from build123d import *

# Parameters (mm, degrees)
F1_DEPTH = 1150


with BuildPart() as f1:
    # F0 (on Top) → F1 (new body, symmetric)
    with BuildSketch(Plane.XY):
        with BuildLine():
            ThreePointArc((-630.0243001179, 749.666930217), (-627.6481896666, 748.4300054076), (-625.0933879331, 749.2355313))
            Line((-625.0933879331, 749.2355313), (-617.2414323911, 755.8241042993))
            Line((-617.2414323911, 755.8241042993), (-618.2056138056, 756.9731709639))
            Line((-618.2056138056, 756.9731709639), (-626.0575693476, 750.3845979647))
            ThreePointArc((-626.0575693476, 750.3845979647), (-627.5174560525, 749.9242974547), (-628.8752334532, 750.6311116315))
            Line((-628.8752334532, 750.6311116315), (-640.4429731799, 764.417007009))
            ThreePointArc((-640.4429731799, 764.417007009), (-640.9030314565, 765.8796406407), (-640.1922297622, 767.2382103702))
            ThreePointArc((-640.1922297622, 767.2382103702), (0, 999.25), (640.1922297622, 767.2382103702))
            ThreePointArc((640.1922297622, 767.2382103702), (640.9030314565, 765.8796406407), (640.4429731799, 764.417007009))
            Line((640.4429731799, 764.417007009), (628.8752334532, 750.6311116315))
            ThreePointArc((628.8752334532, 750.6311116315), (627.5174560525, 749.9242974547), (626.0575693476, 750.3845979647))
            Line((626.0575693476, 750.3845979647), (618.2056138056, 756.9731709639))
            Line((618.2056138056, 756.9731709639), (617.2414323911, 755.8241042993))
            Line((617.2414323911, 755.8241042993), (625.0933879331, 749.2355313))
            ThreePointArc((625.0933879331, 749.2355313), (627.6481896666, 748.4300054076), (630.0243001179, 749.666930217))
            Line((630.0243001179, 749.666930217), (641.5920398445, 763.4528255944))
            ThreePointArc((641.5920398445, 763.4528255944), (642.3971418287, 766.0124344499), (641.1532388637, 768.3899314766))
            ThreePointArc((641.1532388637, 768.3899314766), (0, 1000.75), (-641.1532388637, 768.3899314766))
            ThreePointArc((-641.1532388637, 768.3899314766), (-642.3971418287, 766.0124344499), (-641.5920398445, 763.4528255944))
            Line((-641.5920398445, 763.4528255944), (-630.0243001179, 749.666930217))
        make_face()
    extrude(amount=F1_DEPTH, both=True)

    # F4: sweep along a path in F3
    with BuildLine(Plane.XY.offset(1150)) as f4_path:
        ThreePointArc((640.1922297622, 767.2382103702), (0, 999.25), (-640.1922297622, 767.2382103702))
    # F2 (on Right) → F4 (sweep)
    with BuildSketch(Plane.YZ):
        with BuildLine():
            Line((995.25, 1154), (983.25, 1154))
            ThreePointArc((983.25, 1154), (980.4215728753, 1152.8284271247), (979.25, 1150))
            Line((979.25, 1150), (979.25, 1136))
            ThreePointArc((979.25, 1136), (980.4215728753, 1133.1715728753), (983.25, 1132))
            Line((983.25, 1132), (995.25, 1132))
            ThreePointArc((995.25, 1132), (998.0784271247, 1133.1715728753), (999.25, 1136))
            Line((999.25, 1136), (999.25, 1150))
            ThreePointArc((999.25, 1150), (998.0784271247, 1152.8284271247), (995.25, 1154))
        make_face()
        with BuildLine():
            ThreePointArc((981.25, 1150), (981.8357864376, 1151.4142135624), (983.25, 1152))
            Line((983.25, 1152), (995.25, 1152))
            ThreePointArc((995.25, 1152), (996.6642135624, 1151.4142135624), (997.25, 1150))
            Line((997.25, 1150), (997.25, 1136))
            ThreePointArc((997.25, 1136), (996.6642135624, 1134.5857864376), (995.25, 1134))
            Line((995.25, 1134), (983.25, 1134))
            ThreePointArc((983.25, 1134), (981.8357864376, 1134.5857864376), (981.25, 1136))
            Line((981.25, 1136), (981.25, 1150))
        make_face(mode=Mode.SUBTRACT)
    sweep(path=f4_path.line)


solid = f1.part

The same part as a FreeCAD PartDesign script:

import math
import FreeCAD as App
import Part
import Sketcher

V = App.Vector
Q = App.Units.Quantity

doc = App.newDocument("Part")
body = doc.addObject("PartDesign::Body", "Body")

sketch1 = body.newObject("Sketcher::SketchObject", "Sketch")
sketch1.AttachmentSupport = (doc.getObject("XY_Plane"), [""])
sketch1.MapMode = "FlatFace"
sketch1.addGeometry([
    Part.ArcOfCircle(Part.Circle(V(-627.3, 751.9, 0), V(0, 0, 1), 3.5), math.radians(-140), math.radians(-50)),
    Part.LineSegment(V(-625.1, 749.2, 0), V(-617.2, 755.8, 0)),
    Part.LineSegment(V(-617.2, 755.8, 0), V(-618.2, 757, 0)),
    Part.LineSegment(V(-618.2, 757, 0), V(-626.1, 750.4, 0)),
    Part.ArcOfCircle(Part.Circle(V(-627.3, 751.9, 0), V(0, 0, 1), 2), math.radians(-140), math.radians(-50)),
    Part.LineSegment(V(-628.9, 750.6, 0), V(-640.4, 764.4, 0)),
    Part.ArcOfCircle(Part.Circle(V(-638.9, 765.7, 0), V(0, 0, 1), 2), math.radians(130), math.radians(220)),
    Part.ArcOfCircle(Part.Circle(V(0, 0, 0), V(0, 0, 1), 999.2), math.radians(50), math.radians(130)),
    Part.ArcOfCircle(Part.Circle(V(638.9, 765.7, 0), V(0, 0, 1), 2), math.radians(-40), math.radians(50)),
    Part.LineSegment(V(640.4, 764.4, 0), V(628.9, 750.6, 0)),
    Part.ArcOfCircle(Part.Circle(V(627.3, 751.9, 0), V(0, 0, 1), 2), math.radians(-130), math.radians(-40)),
    Part.LineSegment(V(626.1, 750.4, 0), V(618.2, 757, 0)),
    Part.LineSegment(V(618.2, 757, 0), V(617.2, 755.8, 0)),
    Part.LineSegment(V(617.2, 755.8, 0), V(625.1, 749.2, 0)),
    Part.ArcOfCircle(Part.Circle(V(627.3, 751.9, 0), V(0, 0, 1), 3.5), math.radians(-130), math.radians(-40)),
    Part.LineSegment(V(630, 749.7, 0), V(641.6, 763.5, 0)),
    Part.ArcOfCircle(Part.Circle(V(638.9, 765.7, 0), V(0, 0, 1), 3.5), math.radians(-40), math.radians(50)),
    Part.ArcOfCircle(Part.Circle(V(0, 0, 0), V(0, 0, 1), 1000.8), math.radians(50), math.radians(130)),
    Part.ArcOfCircle(Part.Circle(V(-638.9, 765.7, 0), V(0, 0, 1), 3.5), math.radians(130), math.radians(220)),
    Part.LineSegment(V(-641.6, 763.5, 0), V(-630, 749.7, 0)),
], False)
sketch1.addConstraint([
    Sketcher.Constraint("Tangent", 0, 2, 1, 1),
    Sketcher.Constraint("Coincident", 1, 2, 2, 1),
    Sketcher.Constraint("Coincident", 2, 2, 3, 1),
    Sketcher.Constraint("Tangent", 3, 2, 4, 2),
    Sketcher.Constraint("Tangent", 4, 1, 5, 1),
    Sketcher.Constraint("Tangent", 5, 2, 6, 2),
    Sketcher.Constraint("Tangent", 6, 1, 7, 2),
    Sketcher.Constraint("Tangent", 7, 1, 8, 2),
    Sketcher.Constraint("Tangent", 8, 1, 9, 1),
    Sketcher.Constraint("Tangent", 9, 2, 10, 2),
    Sketcher.Constraint("Tangent", 10, 1, 11, 1),
    Sketcher.Constraint("Coincident", 11, 2, 12, 1),
    Sketcher.Constraint("Coincident", 12, 2, 13, 1),
    Sketcher.Constraint("Tangent", 13, 2, 14, 1),
    Sketcher.Constraint("Tangent", 14, 2, 15, 1),
    Sketcher.Constraint("Tangent", 15, 2, 16, 1),
    Sketcher.Constraint("Tangent", 16, 2, 17, 1),
    Sketcher.Constraint("Tangent", 17, 2, 18, 1),
    Sketcher.Constraint("Tangent", 18, 2, 19, 1),
    Sketcher.Constraint("Tangent", 19, 2, 0, 1),
    Sketcher.Constraint("Coincident", 7, 3, -1, 1),
    Sketcher.Constraint("Coincident", 17, 3, -1, 1),
    Sketcher.Constraint("Coincident", 4, 3, 0, 3),
    Sketcher.Constraint("Coincident", 14, 3, 10, 3),
    Sketcher.Constraint("Coincident", 16, 3, 8, 3),
    Sketcher.Constraint("Coincident", 18, 3, 6, 3),
    Sketcher.Constraint("Equal", 4, 6),
    Sketcher.Constraint("Equal", 6, 8),
    Sketcher.Constraint("Equal", 8, 10),
    Sketcher.Constraint("Equal", 0, 14),
    Sketcher.Constraint("Equal", 14, 16),
    Sketcher.Constraint("Symmetric", 0, 3, 10, 3, -2),
    Sketcher.Constraint("Symmetric", 2, 2, 11, 2, -2),
    Sketcher.Constraint("Symmetric", 1, 2, 12, 2, -2),
    Sketcher.Constraint("Perpendicular", 1, 2),
    Sketcher.Constraint("Perpendicular", 2, 3),
    Sketcher.Constraint("Perpendicular", 3, 5),
    Sketcher.Constraint("Perpendicular", 9, 11),
    Sketcher.Constraint("Radius", 4, 2.0),
    Sketcher.Constraint("Radius", 0, 3.5),
    Sketcher.Constraint("Angle", 1, Q("40 deg")),
    Sketcher.Constraint("Radius", 7, 999.25),
    Sketcher.Constraint("Distance", 1, 10.25),
    Sketcher.Constraint("DistanceX", -1, 1, 14, 2, 630.0243),
    Sketcher.Constraint("Distance", 5, 17.996208),
])
pad1 = body.newObject("PartDesign::Pad", "Pad")
pad1.Profile = sketch1
pad1.Length = 2300
pad1.Midplane = True

sketch2 = body.newObject("Sketcher::SketchObject", "Sketch001")
sketch2.AttachmentSupport = (doc.getObject("YZ_Plane"), [""])
sketch2.MapMode = "FlatFace"
sketch2.addGeometry([
    Part.LineSegment(V(995.2, 1154, 0), V(983.2, 1154, 0)),
    Part.ArcOfCircle(Part.Circle(V(983.2, 1150, 0), V(0, 0, 1), 4), math.radians(90), math.radians(180)),
    Part.LineSegment(V(979.2, 1150, 0), V(979.2, 1136, 0)),
    Part.ArcOfCircle(Part.Circle(V(983.2, 1136, 0), V(0, 0, 1), 4), math.radians(180), math.radians(270)),
    Part.LineSegment(V(983.2, 1132, 0), V(995.2, 1132, 0)),
    Part.ArcOfCircle(Part.Circle(V(995.2, 1136, 0), V(0, 0, 1), 4), math.radians(-90), math.radians(0)),
    Part.LineSegment(V(999.2, 1136, 0), V(999.2, 1150, 0)),
    Part.ArcOfCircle(Part.Circle(V(995.2, 1150, 0), V(0, 0, 1), 4), math.radians(0), math.radians(90)),
    Part.LineSegment(V(981.2, 1136, 0), V(981.2, 1150, 0)),
    Part.ArcOfCircle(Part.Circle(V(983.2, 1150, 0), V(0, 0, 1), 2), math.radians(90), math.radians(180)),
    Part.LineSegment(V(983.2, 1152, 0), V(995.2, 1152, 0)),
    Part.ArcOfCircle(Part.Circle(V(995.2, 1150, 0), V(0, 0, 1), 2), math.radians(0), math.radians(90)),
    Part.LineSegment(V(997.2, 1150, 0), V(997.2, 1136, 0)),
    Part.ArcOfCircle(Part.Circle(V(995.2, 1136, 0), V(0, 0, 1), 2), math.radians(-90), math.radians(0)),
    Part.LineSegment(V(995.2, 1134, 0), V(983.2, 1134, 0)),
    Part.ArcOfCircle(Part.Circle(V(983.2, 1136, 0), V(0, 0, 1), 2), math.radians(180), math.radians(270)),
], False)
sketch2.addConstraint([
    Sketcher.Constraint("Tangent", 0, 2, 1, 1),
    Sketcher.Constraint("Tangent", 1, 2, 2, 1),
    Sketcher.Constraint("Tangent", 2, 2, 3, 1),
    Sketcher.Constraint("Tangent", 3, 2, 4, 1),
    Sketcher.Constraint("Tangent", 4, 2, 5, 1),
    Sketcher.Constraint("Tangent", 5, 2, 6, 1),
    Sketcher.Constraint("Tangent", 6, 2, 7, 1),
    Sketcher.Constraint("Tangent", 7, 2, 0, 1),
    Sketcher.Constraint("Tangent", 8, 2, 9, 2),
    Sketcher.Constraint("Tangent", 9, 1, 10, 1),
    Sketcher.Constraint("Tangent", 10, 2, 11, 2),
    Sketcher.Constraint("Tangent", 11, 1, 12, 1),
    Sketcher.Constraint("Tangent", 12, 2, 13, 2),
    Sketcher.Constraint("Tangent", 13, 1, 14, 1),
    Sketcher.Constraint("Tangent", 14, 2, 15, 2),
    Sketcher.Constraint("Tangent", 15, 1, 8, 1),
    Sketcher.Constraint("Horizontal", 0),
    Sketcher.Constraint("Vertical", 2),
    Sketcher.Constraint("Horizontal", 4),
    Sketcher.Constraint("Vertical", 6),
    Sketcher.Constraint("Vertical", 8),
    Sketcher.Constraint("Horizontal", 10),
    Sketcher.Constraint("Vertical", 12),
    Sketcher.Constraint("Horizontal", 14),
    Sketcher.Constraint("Coincident", 9, 3, 1, 3),
    Sketcher.Constraint("Coincident", 11, 3, 7, 3),
    Sketcher.Constraint("Coincident", 13, 3, 5, 3),
    Sketcher.Constraint("Equal", 1, 3),
    Sketcher.Constraint("Equal", 3, 5),
    Sketcher.Constraint("Equal", 5, 7),
    Sketcher.Constraint("Equal", 13, 15),
    Sketcher.Constraint("Radius", 1, 4.0),
    Sketcher.Constraint("Radius", 9, 2.0),
    Sketcher.Constraint("DistanceX", 0, 2, 0, 1, 12.0),
    Sketcher.Constraint("DistanceY", 2, 2, 2, 1, 14.0),
    Sketcher.Constraint("DistanceY", -1, 1, 1, 3, 1150.0),
    Sketcher.Constraint("DistanceX", -1, 1, 1, 3, 983.25),
])

sketch3 = body.newObject("Sketcher::SketchObject", "Sketch002")
sketch3.AttachmentSupport = (doc.getObject("XY_Plane"), [""])
sketch3.MapMode = "FlatFace"
sketch3.AttachmentOffset = App.Placement(V(0, 0, 1150), App.Rotation())
sketch3.addGeometry(Part.ArcOfCircle(Part.Circle(V(0, 0, 0), V(0, 0, 1), 999), math.radians(50), math.radians(130)), False)
sketch3.addConstraint([
    Sketcher.Constraint("Coincident", 0, 3, -1, 1),
    Sketcher.Constraint("Radius", 0, 999.25),
    Sketcher.Constraint("DistanceX", -1, 1, 0, 1, 640.19223),
    Sketcher.Constraint("DistanceX", 0, 2, -1, 1, 640.19223),
])
doc.recompute()

additivepipe = body.newObject("PartDesign::AdditivePipe", "AdditivePipe")
additivepipe.Profile = sketch2
additivepipe.Spine = (sketch3, ["Edge1"])

doc.recompute()
